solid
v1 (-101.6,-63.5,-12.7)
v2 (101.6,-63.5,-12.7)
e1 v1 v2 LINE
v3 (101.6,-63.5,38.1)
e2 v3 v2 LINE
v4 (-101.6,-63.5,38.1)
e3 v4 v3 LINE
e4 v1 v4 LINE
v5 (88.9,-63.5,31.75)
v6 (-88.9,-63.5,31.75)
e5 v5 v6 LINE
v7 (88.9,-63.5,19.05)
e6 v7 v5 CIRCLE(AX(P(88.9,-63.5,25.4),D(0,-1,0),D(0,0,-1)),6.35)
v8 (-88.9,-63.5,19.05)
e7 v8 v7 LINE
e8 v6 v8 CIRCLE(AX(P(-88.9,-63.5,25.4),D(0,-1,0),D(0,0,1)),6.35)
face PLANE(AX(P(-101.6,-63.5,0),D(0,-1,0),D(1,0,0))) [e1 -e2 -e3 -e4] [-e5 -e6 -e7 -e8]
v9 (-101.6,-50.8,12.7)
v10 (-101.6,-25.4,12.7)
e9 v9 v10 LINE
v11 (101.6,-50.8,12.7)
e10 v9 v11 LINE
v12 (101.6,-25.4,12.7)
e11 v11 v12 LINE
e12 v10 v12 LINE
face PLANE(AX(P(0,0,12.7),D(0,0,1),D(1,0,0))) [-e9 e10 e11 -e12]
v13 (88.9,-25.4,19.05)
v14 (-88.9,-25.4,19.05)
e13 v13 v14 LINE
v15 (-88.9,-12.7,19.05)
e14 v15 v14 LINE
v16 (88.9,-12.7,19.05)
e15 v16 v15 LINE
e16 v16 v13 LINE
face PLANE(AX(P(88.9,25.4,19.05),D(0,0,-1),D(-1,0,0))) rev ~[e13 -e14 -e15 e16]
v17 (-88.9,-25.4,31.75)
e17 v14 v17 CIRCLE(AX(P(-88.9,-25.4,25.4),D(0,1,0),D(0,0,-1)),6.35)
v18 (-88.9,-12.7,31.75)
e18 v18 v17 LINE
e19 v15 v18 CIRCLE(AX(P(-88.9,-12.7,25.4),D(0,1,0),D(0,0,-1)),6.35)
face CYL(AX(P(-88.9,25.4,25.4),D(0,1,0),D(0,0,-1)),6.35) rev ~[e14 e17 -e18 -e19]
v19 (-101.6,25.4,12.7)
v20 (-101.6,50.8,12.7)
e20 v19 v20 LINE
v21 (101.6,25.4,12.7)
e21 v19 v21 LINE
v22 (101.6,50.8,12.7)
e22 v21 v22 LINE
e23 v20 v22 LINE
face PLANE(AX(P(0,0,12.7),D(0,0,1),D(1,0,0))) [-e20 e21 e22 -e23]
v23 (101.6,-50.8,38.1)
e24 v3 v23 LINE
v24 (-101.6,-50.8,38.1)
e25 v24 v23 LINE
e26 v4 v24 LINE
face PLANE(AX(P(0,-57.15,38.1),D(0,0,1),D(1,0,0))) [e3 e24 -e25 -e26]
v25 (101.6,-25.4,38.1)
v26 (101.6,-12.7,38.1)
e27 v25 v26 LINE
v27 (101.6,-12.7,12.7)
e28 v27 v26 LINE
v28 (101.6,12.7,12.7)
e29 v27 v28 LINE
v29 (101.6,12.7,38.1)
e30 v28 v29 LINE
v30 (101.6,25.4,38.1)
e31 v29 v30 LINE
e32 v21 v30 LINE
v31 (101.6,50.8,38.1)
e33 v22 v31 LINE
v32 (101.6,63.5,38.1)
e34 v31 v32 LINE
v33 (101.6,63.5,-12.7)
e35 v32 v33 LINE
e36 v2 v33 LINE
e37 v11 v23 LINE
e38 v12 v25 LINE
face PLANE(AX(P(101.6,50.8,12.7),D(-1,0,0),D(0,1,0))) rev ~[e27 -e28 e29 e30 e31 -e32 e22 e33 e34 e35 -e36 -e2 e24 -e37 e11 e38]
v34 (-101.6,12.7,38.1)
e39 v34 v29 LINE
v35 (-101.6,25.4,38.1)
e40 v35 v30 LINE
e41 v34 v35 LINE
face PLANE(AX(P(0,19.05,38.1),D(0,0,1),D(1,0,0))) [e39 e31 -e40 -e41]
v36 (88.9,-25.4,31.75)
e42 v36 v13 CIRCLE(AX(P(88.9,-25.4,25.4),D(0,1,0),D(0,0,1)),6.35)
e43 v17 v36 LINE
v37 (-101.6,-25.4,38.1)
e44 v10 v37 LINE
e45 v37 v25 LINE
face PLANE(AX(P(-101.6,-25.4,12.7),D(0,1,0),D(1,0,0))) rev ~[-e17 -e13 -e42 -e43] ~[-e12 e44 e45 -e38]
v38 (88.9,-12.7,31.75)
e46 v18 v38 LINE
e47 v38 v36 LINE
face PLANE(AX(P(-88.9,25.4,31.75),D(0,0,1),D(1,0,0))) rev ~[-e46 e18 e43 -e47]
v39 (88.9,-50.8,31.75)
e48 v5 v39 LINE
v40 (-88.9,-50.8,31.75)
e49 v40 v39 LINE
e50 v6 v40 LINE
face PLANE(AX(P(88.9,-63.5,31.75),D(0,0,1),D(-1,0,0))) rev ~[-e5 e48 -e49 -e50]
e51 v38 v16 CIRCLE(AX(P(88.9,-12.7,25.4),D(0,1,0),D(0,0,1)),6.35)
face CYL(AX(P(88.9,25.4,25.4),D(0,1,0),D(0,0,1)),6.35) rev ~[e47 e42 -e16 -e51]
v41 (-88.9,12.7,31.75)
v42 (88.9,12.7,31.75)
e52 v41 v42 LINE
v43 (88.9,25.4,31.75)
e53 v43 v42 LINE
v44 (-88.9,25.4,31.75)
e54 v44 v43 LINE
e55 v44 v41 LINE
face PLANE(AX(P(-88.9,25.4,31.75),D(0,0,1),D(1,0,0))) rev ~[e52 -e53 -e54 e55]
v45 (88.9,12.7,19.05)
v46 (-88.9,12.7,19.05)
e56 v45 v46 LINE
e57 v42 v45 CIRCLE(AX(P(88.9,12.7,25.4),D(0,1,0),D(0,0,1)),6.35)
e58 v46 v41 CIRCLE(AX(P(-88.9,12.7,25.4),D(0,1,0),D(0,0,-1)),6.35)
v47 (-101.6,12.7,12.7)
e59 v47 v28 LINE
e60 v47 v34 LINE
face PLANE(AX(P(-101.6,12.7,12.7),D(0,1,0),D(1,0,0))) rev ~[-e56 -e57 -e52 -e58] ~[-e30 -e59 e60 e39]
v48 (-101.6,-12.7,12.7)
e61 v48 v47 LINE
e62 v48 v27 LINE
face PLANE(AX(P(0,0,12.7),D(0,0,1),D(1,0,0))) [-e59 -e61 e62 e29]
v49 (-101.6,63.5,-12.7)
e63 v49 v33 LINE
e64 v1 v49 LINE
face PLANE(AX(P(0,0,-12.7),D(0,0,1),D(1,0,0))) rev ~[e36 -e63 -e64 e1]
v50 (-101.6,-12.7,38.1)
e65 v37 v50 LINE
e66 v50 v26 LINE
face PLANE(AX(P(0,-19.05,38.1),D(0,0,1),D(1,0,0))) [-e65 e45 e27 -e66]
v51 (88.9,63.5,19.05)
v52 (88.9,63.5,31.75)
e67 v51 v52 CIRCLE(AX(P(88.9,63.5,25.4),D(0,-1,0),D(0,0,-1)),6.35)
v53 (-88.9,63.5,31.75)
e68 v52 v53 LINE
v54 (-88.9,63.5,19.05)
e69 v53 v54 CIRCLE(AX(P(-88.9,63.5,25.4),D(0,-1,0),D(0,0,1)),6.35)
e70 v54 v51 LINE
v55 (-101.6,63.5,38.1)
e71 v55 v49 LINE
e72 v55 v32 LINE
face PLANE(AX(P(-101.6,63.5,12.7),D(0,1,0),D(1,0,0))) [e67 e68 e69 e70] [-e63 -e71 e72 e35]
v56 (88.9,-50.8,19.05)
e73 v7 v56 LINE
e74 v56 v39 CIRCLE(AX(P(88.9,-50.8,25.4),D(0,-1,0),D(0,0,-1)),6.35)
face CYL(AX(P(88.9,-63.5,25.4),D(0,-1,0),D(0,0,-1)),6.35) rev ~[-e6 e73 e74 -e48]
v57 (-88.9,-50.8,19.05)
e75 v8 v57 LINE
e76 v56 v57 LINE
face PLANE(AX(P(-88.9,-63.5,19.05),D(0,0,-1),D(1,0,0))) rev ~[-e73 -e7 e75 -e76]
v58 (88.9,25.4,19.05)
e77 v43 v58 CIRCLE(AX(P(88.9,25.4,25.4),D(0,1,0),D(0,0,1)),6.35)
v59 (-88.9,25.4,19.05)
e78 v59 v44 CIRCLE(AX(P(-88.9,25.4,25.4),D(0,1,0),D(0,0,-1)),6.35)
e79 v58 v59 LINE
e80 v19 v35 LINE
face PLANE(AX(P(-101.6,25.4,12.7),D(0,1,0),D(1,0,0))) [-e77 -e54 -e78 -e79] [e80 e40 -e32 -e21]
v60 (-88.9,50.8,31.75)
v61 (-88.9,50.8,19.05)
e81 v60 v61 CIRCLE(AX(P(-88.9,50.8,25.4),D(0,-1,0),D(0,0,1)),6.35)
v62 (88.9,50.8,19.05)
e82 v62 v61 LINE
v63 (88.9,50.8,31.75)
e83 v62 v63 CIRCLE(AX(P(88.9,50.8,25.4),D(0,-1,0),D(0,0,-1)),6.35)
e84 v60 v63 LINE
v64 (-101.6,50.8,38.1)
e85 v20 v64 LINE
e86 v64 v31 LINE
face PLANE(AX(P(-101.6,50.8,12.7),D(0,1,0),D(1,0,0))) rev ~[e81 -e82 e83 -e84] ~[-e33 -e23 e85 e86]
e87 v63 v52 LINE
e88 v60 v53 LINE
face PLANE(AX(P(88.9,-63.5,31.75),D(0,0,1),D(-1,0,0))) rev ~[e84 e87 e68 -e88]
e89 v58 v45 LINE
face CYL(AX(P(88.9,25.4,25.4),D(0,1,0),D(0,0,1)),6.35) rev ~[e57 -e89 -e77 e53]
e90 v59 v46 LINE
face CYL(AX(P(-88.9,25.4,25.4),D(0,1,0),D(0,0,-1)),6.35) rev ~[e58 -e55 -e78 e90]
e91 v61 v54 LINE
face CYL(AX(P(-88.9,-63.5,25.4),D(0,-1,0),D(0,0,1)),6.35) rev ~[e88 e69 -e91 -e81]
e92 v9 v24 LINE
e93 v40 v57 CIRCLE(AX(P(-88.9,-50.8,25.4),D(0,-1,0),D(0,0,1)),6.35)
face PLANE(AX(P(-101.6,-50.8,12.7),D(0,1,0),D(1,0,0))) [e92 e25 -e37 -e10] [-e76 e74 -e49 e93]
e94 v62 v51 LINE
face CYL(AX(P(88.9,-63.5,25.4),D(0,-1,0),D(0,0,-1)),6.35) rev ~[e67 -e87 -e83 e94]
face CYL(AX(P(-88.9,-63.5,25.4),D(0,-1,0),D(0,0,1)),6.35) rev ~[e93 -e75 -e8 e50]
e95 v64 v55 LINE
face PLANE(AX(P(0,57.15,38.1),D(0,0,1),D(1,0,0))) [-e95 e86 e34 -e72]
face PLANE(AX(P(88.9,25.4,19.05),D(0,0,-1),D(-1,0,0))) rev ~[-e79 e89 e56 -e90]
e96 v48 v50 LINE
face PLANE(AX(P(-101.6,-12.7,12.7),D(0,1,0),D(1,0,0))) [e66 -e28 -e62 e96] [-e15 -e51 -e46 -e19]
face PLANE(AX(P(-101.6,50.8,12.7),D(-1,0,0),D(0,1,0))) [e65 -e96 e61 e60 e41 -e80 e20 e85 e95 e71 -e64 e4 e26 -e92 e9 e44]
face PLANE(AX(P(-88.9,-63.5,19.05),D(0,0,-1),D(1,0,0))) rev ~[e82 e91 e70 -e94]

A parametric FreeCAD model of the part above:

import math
import FreeCAD as App
import Part
import Sketcher

V = App.Vector
Q = App.Units.Quantity

doc = App.newDocument("Part")
params = doc.addObject("Spreadsheet::Sheet", "Params")
for row, (alias, value) in enumerate([
    ("sketch1_width", "8 in"),
    ("sketch1_height", "5 in"),
    ("pad1_length", "1 in"),
    ("sketch2_width", "8 in"),
    ("sketch2_height", "0.5 in"),
    ("pad2_length", "1 in"),
    ("sketch3_width", "7 in"),
    ("sketch3_radius", "0.25 in"),
    ("pocket1_length", "5 in"),
    ("sketch4_width", "8 in"),
    ("sketch4_height", "0.5 in"),
    ("pad3_length", "1 in"),
    ("sketch5_width", "7 in"),
    ("sketch5_radius", "0.25 in"),
    ("pocket2_length", "2 in"),
], start=1):
    params.set(f"A{row}", alias)
    params.set(f"B{row}", "=" + value)
    params.setAlias(f"B{row}", alias)

body = doc.addObject("PartDesign::Body", "Body")

sketch1 = body.newObject("Sketcher::SketchObject", "Sketch")
sketch1.AttachmentSupport = (doc.getObject("XY_Plane"), [""])
sketch1.MapMode = "FlatFace"
sketch1.addGeometry([
    Part.LineSegment(V(-102, 64, 0), V(-102, -64, 0)),
    Part.LineSegment(V(-102, -64, 0), V(102, -64, 0)),
    Part.LineSegment(V(102, -64, 0), V(102, 64, 0)),
    Part.LineSegment(V(102, 64, 0), V(-102, 64, 0)),
], False)
sketch1.addConstraint([
    Sketcher.Constraint("Coincident", 0, 2, 1, 1),
    Sketcher.Constraint("Coincident", 1, 2, 2, 1),
    Sketcher.Constraint("Coincident", 2, 2, 3, 1),
    Sketcher.Constraint("Coincident", 3, 2, 0, 1),
    Sketcher.Constraint("Vertical", 0),
    Sketcher.Constraint("Horizontal", 1),
    Sketcher.Constraint("Vertical", 2),
    Sketcher.Constraint("Horizontal", 3),
    Sketcher.Constraint("Symmetric", 0, 2, 2, 2, -1, 1),
    Sketcher.Constraint("DistanceX", 1, 1, 1, 2, Q("8 in")),
    Sketcher.Constraint("DistanceY", 0, 2, 0, 1, Q("5 in")),
])
sketch1.setExpression("Constraints[9]", "Params.sketch1_width")
sketch1.setExpression("Constraints[10]", "Params.sketch1_height")
pad1 = body.newObject("PartDesign::Pad", "Pad")
pad1.Profile = sketch1
pad1.setExpression("Length", "Params.pad1_length")
pad1.Midplane = True

sketch2 = body.newObject("Sketcher::SketchObject", "Sketch001")
sketch2.AttachmentSupport = (doc.getObject("XY_Plane"), [""])
sketch2.MapMode = "FlatFace"
sketch2.AttachmentOffset = App.Placement(V(0, 0, 0.5 * 25.4), App.Rotation())
sketch2.addGeometry([
    Part.LineSegment(V(-102, 64, 0), V(-102, 51, 0)),
    Part.LineSegment(V(-102, 51, 0), V(102, 51, 0)),
    Part.LineSegment(V(102, 51, 0), V(102, 64, 0)),
    Part.LineSegment(V(102, 64, 0), V(-102, 64, 0)),
    Part.LineSegment(V(-102, -51, 0), V(-102, -64, 0)),
    Part.LineSegment(V(-102, -64, 0), V(102, -64, 0)),
    Part.LineSegment(V(102, -64, 0), V(102, -51, 0)),
    Part.LineSegment(V(102, -51, 0), V(-102, -51, 0)),
], False)
sketch2.addConstraint([
    Sketcher.Constraint("Coincident", 0, 2, 1, 1),
    Sketcher.Constraint("Coincident", 1, 2, 2, 1),
    Sketcher.Constraint("Coincident", 2, 2, 3, 1),
    Sketcher.Constraint("Coincident", 3, 2, 0, 1),
    Sketcher.Constraint("Coincident", 4, 2, 5, 1),
    Sketcher.Constraint("Coincident", 5, 2, 6, 1),
    Sketcher.Constraint("Coincident", 6, 2, 7, 1),
    Sketcher.Constraint("Coincident", 7, 2, 4, 1),
    Sketcher.Constraint("Vertical", 0),
    Sketcher.Constraint("Horizontal", 1),
    Sketcher.Constraint("Vertical", 2),
    Sketcher.Constraint("Horizontal", 3),
    Sketcher.Constraint("Vertical", 4),
    Sketcher.Constraint("Horizontal", 5),
    Sketcher.Constraint("Vertical", 6),
    Sketcher.Constraint("Horizontal", 7),
    Sketcher.Constraint("Symmetric", 2, 2, 4, 2, -1, 1),
    Sketcher.Constraint("Symmetric", 0, 2, 6, 2, -1, 1),
    Sketcher.Constraint("Vertical", 3, 2, 4, 2),
    Sketcher.Constraint("DistanceX", 1, 1, 1, 2, Q("8 in")),
    Sketcher.Constraint("DistanceY", 0, 2, 0, 1, Q("0.5 in")),
    Sketcher.Constraint("DistanceY", -1, 1, 0, 2, Q("2 in")),
])
sketch2.setExpression("Constraints[19]", "Params.sketch2_width")
sketch2.setExpression("Constraints[20]", "Params.sketch2_height")
pad2 = body.newObject("PartDesign::Pad", "Pad001")
pad2.Profile = sketch2
pad2.setExpression("Length", "Params.pad2_length")

sketch3 = body.newObject("Sketcher::SketchObject", "Sketch002")
sketch3.AttachmentSupport = (doc.getObject("XZ_Plane"), [""])
sketch3.MapMode = "FlatFace"
sketch3.AttachmentOffset = App.Placement(V(0, 0, 2.5 * 25.4), App.Rotation())
sketch3.addGeometry([
    Part.LineSegment(V(-89, 19, 0), V(89, 19, 0)),
    Part.ArcOfCircle(Part.Circle(V(89, 25, 0), V(0, 0, 1), 6), math.radians(-90), math.radians(90)),
    Part.LineSegment(V(89, 32, 0), V(-89, 32, 0)),
    Part.ArcOfCircle(Part.Circle(V(-89, 25, 0), V(0, 0, 1), 6), math.radians(90), math.radians(270)),
], False)
sketch3.addConstraint([
    Sketcher.Constraint("Tangent", 0, 2, 1, 1),
    Sketcher.Constraint("Tangent", 1, 2, 2, 1),
    Sketcher.Constraint("Tangent", 2, 2, 3, 1),
    Sketcher.Constraint("Tangent", 3, 2, 0, 1),
    Sketcher.Constraint("Horizontal", 0),
    Sketcher.Constraint("Horizontal", 2),
    Sketcher.Constraint("DistanceX", 0, 1, 0, 2, Q("7 in")),
    Sketcher.Constraint("Radius", 1, Q("0.25 in")),
    Sketcher.Constraint("DistanceY", -1, 1, 1, 3, Q("1 in")),
    Sketcher.Constraint("DistanceX", -1, 1, 1, 3, Q("3.5 in")),
])
sketch3.setExpression("Constraints[6]", "Params.sketch3_width")
sketch3.setExpression("Constraints[7]", "Params.sketch3_radius")
pocket1 = body.newObject("PartDesign::Pocket", "Pocket")
pocket1.Profile = sketch3
pocket1.setExpression("Length", "Params.pocket1_length")

sketch4 = body.newObject("Sketcher::SketchObject", "Sketch003")
sketch4.AttachmentSupport = (doc.getObject("XY_Plane"), [""])
sketch4.MapMode = "FlatFace"
sketch4.AttachmentOffset = App.Placement(V(0, 0, 0.5 * 25.4), App.Rotation())
sketch4.addGeometry([
    Part.LineSegment(V(-102, 25, 0), V(-102, 13, 0)),
    Part.LineSegment(V(-102, 13, 0), V(102, 13, 0)),
    Part.LineSegment(V(102, 13, 0), V(102, 25, 0)),
    Part.LineSegment(V(102, 25, 0), V(-102, 25, 0)),
    Part.LineSegment(V(-102, -13, 0), V(-102, -25, 0)),
    Part.LineSegment(V(-102, -25, 0), V(102, -25, 0)),
    Part.LineSegment(V(102, -25, 0), V(102, -13, 0)),
    Part.LineSegment(V(102, -13, 0), V(-102, -13, 0)),
], False)
sketch4.addConstraint([
    Sketcher.Constraint("Coincident", 0, 2, 1, 1),
    Sketcher.Constraint("Coincident", 1, 2, 2, 1),
    Sketcher.Constraint("Coincident", 2, 2, 3, 1),
    Sketcher.Constraint("Coincident", 3, 2, 0, 1),
    Sketcher.Constraint("Coincident", 4, 2, 5, 1),
    Sketcher.Constraint("Coincident", 5, 2, 6, 1),
    Sketcher.Constraint("Coincident", 6, 2, 7, 1),
    Sketcher.Constraint("Coincident", 7, 2, 4, 1),
    Sketcher.Constraint("Vertical", 0),
    Sketcher.Constraint("Horizontal", 1),
    Sketcher.Constraint("Vertical", 2),
    Sketcher.Constraint("Horizontal", 3),
    Sketcher.Constraint("Vertical", 4),
    Sketcher.Constraint("Horizontal", 5),
    Sketcher.Constraint("Vertical", 6),
    Sketcher.Constraint("Horizontal", 7),
    Sketcher.Constraint("Symmetric", 2, 2, 4, 2, -1, 1),
    Sketcher.Constraint("Symmetric", 0, 2, 6, 2, -1, 1),
    Sketcher.Constraint("Vertical", 3, 2, 4, 2),
    Sketcher.Constraint("DistanceX", 1, 1, 1, 2, Q("8 in")),
    Sketcher.Constraint("DistanceY", 0, 2, 0, 1, Q("0.5 in")),
    Sketcher.Constraint("DistanceY", -1, 1, 2, 2, Q("1 in")),
])
sketch4.setExpression("Constraints[19]", "Params.sketch4_width")
sketch4.setExpression("Constraints[20]", "Params.sketch4_height")
pad3 = body.newObject("PartDesign::Pad", "Pad002")
pad3.Profile = sketch4
pad3.setExpression("Length", "Params.pad3_length")

sketch5 = body.newObject("Sketcher::SketchObject", "Sketch004")
sketch5.AttachmentSupport = (doc.getObject("XZ_Plane"), [""])
sketch5.MapMode = "FlatFace"
sketch5.AttachmentOffset = App.Placement(V(0, 0, -1 * 25.4), App.Rotation())
sketch5.addGeometry([
    Part.LineSegment(V(-89, 32, 0), V(89, 32, 0)),
    Part.ArcOfCircle(Part.Circle(V(89, 25, 0), V(0, 0, 1), 6), math.radians(-90), math.radians(90)),
    Part.LineSegment(V(89, 19, 0), V(-89, 19, 0)),
    Part.ArcOfCircle(Part.Circle(V(-89, 25, 0), V(0, 0, 1), 6), math.radians(90), math.radians(270)),
], False)
sketch5.addConstraint([
    Sketcher.Constraint("Tangent", 0, 2, 1, 2),
    Sketcher.Constraint("Tangent", 1, 1, 2, 1),
    Sketcher.Constraint("Tangent", 2, 2, 3, 2),
    Sketcher.Constraint("Tangent", 3, 1, 0, 1),
    Sketcher.Constraint("Horizontal", 0),
    Sketcher.Constraint("Horizontal", 2),
    Sketcher.Constraint("DistanceX", 0, 1, 0, 2, Q("7 in")),
    Sketcher.Constraint("Radius", 1, Q("0.25 in")),
    Sketcher.Constraint("DistanceY", -1, 1, 1, 3, Q("1 in")),
    Sketcher.Constraint("DistanceX", -1, 1, 1, 3, Q("3.5 in")),
])
sketch5.setExpression("Constraints[6]", "Params.sketch5_width")
sketch5.setExpression("Constraints[7]", "Params.sketch5_radius")
pocket2 = body.newObject("PartDesign::Pocket", "Pocket001")
pocket2.Profile = sketch5
pocket2.setExpression("Length", "Params.pocket2_length")
pocket2.Reversed = True

doc.recompute()
